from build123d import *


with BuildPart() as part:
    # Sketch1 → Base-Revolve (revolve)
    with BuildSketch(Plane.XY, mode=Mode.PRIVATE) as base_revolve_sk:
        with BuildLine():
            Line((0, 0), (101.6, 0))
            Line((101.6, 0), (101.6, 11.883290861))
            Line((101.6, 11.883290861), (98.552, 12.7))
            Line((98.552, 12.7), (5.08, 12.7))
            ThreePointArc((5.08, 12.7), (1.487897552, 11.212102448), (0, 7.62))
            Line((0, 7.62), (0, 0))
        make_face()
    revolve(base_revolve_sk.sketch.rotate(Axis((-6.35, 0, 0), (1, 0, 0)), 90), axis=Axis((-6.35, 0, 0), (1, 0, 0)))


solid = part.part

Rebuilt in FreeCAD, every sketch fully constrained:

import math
import FreeCAD as App
import Part
import Sketcher
Q = App.Units.Quantity

doc = App.newDocument("Part")
body = doc.addObject("PartDesign::Body", "Body")

sketch1 = body.newObject("Sketcher::SketchObject", "Sketch")
sketch1.AttachmentSupport = (doc.getObject("XY_Plane"), [""])
sketch1.MapMode = "FlatFace"
sketch1.addGeometry([
    Part.LineSegment(App.Vector(0, 0, 0), App.Vector(101.6, 0, 0)),
    Part.LineSegment(App.Vector(101.6, 0, 0), App.Vector(101.6, 11.9, 0)),
    Part.LineSegment(App.Vector(101.6, 11.9, 0), App.Vector(98.6, 12.7, 0)),
    Part.LineSegment(App.Vector(98.6, 12.7, 0), App.Vector(5.1, 12.7, 0)),
    Part.ArcOfCircle(Part.Circle(App.Vector(5.1, 7.6, 0), App.Vector(0, 0, 1), 5.1), math.radians(90), math.radians(180)),
    Part.LineSegment(App.Vector(0, 7.6, 0), App.Vector(0, 0, 0)),
], False)
sketch1.addConstraint([
    Sketcher.Constraint("Coincident", 0, 2, 1, 1),
    Sketcher.Constraint("Coincident", 1, 2, 2, 1),
    Sketcher.Constraint("Coincident", 2, 2, 3, 1),
    Sketcher.Constraint("Tangent", 3, 2, 4, 1),
    Sketcher.Constraint("Tangent", 4, 2, 5, 1),
    Sketcher.Constraint("Coincident", 5, 2, 0, 1),
    Sketcher.Constraint("Horizontal", 0),
    Sketcher.Constraint("Vertical", 1),
    Sketcher.Constraint("Horizontal", 3),
    Sketcher.Constraint("Vertical", 5),
    Sketcher.Constraint("Coincident", 5, 2, -1, 1),
    Sketcher.Constraint("Radius", 4, Q("0.2 in")),
    Sketcher.Constraint("DistanceX", 0, 1, 0, 2, Q("4 in")),
    Sketcher.Constraint("DistanceY", 5, 2, 5, 1, Q("0.3 in")),
    Sketcher.Constraint("Angle", 2, Q("165 deg")),
    Sketcher.Constraint("DistanceX", 3, 2, 3, 1, Q("3.68 in")),
])
revolution = body.newObject("PartDesign::Revolution", "Revolution")
revolution.Profile = sketch1
revolution.ReferenceAxis = (sketch1, ["H_Axis"])
revolution.Angle = 360

doc.recompute()
